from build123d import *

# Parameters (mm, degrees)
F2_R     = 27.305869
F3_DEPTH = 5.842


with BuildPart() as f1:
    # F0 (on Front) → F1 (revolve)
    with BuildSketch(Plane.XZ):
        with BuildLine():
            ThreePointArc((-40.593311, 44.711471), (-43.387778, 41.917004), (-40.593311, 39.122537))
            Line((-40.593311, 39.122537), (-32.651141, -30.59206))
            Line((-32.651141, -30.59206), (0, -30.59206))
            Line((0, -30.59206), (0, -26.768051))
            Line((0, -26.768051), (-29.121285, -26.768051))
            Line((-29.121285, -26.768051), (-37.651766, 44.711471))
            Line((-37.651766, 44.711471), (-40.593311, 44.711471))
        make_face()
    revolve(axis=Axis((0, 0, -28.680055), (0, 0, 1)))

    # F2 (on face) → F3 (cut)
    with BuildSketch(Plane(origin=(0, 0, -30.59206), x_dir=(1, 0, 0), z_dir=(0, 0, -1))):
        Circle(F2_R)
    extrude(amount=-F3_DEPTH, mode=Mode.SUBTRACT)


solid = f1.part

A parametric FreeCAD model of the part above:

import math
import FreeCAD as App
import Part
import Sketcher
from FreeCAD import Vector
Q = App.Units.Quantity

doc = App.newDocument("Part")
body = doc.addObject("PartDesign::Body", "Body")

# Sketch on XZ plane
sketch1 = body.newObject("Sketcher::SketchObject", "Sketch")
sketch1.AttachmentSupport = (doc.getObject("XZ_Plane"), [""])
sketch1.MapMode = "FlatFace"
sketch1.addGeometry([
    Part.ArcOfCircle(Part.Circle(Vector(-40.6, 41.9, 0), Vector(0, 0, 1), 2.8), math.radians(90), math.radians(270)),  # 0
    Part.LineSegment(Vector(-40.6, 39.1, 0), Vector(-32.7, -30.6, 0)),  # 1
    Part.LineSegment(Vector(-32.7, -30.6, 0), Vector(0, -30.6, 0)),  # 2
    Part.LineSegment(Vector(0, -30.6, 0), Vector(0, -26.8, 0)),  # 3
    Part.LineSegment(Vector(0, -26.8, 0), Vector(-29.1, -26.8, 0)),  # 4
    Part.LineSegment(Vector(-29.1, -26.8, 0), Vector(-37.7, 44.7, 0)),  # 5
    Part.LineSegment(Vector(-37.7, 44.7, 0), Vector(-40.6, 44.7, 0)),  # 6
], False)
sketch1.addConstraint([
    Sketcher.Constraint("Coincident", 0, 2, 1, 1),
    Sketcher.Constraint("Coincident", 1, 2, 2, 1),
    Sketcher.Constraint("Coincident", 2, 2, 3, 1),
    Sketcher.Constraint("Coincident", 3, 2, 4, 1),
    Sketcher.Constraint("Coincident", 4, 2, 5, 1),
    Sketcher.Constraint("Coincident", 5, 2, 6, 1),
    Sketcher.Constraint("Tangent", 6, 2, 0, 1),
    Sketcher.Constraint("Horizontal", 2),
    Sketcher.Constraint("Vertical", 3),
    Sketcher.Constraint("Horizontal", 4),
    Sketcher.Constraint("Horizontal", 6),
    Sketcher.Constraint("PointOnObject", 2, 2, -2),
    Sketcher.Constraint("Vertical", 0, 2, 6, 2),
    Sketcher.Constraint("Radius", 0, Q("2.794467 mm")),
    Sketcher.Constraint("DistanceX", 2, 1, 2, 2, Q("32.651141 mm")),
    Sketcher.Constraint("DistanceY", 3, 1, 3, 2, Q("3.824009 mm")),
    Sketcher.Constraint("Distance", 1, Q("70.165541 mm")),
    Sketcher.Constraint("DistanceX", 4, 2, 4, 1, Q("29.121285 mm")),
    Sketcher.Constraint("DistanceX", 6, 2, 6, 1, Q("2.941545 mm")),
    Sketcher.Constraint("DistanceX", 0, 3, -1, 1, Q("40.593311 mm")),
    Sketcher.Constraint("DistanceY", 1, 2, -1, 1, Q("30.59206 mm")),
])
revolution = body.newObject("PartDesign::Revolution", "Revolution")
revolution.Profile = sketch1
revolution.ReferenceAxis = (sketch1, ["V_Axis"])
revolution.Angle = 360

# Sketch on XY plane
sketch2 = body.newObject("Sketcher::SketchObject", "Sketch001")
sketch2.AttachmentSupport = (doc.getObject("XY_Plane"), [""])
sketch2.MapMode = "FlatFace"
sketch2.AttachmentOffset = App.Placement(Vector(0, 0, -30.59206), App.Rotation())
sketch2.addGeometry(Part.Circle(Vector(0, 0, 0), Vector(0, 0, 1), 27), False)
sketch2.addConstraint([
    Sketcher.Constraint("Coincident", 0, 3, -1, 1),
    Sketcher.Constraint("Diameter", 0, Q("54.611738 mm")),
])
pocket1 = body.newObject("PartDesign::Pocket", "Pocket")
pocket1.Profile = sketch2
pocket1.Length = Q("0.23 in")
pocket1.Reversed = True

doc.recompute()
